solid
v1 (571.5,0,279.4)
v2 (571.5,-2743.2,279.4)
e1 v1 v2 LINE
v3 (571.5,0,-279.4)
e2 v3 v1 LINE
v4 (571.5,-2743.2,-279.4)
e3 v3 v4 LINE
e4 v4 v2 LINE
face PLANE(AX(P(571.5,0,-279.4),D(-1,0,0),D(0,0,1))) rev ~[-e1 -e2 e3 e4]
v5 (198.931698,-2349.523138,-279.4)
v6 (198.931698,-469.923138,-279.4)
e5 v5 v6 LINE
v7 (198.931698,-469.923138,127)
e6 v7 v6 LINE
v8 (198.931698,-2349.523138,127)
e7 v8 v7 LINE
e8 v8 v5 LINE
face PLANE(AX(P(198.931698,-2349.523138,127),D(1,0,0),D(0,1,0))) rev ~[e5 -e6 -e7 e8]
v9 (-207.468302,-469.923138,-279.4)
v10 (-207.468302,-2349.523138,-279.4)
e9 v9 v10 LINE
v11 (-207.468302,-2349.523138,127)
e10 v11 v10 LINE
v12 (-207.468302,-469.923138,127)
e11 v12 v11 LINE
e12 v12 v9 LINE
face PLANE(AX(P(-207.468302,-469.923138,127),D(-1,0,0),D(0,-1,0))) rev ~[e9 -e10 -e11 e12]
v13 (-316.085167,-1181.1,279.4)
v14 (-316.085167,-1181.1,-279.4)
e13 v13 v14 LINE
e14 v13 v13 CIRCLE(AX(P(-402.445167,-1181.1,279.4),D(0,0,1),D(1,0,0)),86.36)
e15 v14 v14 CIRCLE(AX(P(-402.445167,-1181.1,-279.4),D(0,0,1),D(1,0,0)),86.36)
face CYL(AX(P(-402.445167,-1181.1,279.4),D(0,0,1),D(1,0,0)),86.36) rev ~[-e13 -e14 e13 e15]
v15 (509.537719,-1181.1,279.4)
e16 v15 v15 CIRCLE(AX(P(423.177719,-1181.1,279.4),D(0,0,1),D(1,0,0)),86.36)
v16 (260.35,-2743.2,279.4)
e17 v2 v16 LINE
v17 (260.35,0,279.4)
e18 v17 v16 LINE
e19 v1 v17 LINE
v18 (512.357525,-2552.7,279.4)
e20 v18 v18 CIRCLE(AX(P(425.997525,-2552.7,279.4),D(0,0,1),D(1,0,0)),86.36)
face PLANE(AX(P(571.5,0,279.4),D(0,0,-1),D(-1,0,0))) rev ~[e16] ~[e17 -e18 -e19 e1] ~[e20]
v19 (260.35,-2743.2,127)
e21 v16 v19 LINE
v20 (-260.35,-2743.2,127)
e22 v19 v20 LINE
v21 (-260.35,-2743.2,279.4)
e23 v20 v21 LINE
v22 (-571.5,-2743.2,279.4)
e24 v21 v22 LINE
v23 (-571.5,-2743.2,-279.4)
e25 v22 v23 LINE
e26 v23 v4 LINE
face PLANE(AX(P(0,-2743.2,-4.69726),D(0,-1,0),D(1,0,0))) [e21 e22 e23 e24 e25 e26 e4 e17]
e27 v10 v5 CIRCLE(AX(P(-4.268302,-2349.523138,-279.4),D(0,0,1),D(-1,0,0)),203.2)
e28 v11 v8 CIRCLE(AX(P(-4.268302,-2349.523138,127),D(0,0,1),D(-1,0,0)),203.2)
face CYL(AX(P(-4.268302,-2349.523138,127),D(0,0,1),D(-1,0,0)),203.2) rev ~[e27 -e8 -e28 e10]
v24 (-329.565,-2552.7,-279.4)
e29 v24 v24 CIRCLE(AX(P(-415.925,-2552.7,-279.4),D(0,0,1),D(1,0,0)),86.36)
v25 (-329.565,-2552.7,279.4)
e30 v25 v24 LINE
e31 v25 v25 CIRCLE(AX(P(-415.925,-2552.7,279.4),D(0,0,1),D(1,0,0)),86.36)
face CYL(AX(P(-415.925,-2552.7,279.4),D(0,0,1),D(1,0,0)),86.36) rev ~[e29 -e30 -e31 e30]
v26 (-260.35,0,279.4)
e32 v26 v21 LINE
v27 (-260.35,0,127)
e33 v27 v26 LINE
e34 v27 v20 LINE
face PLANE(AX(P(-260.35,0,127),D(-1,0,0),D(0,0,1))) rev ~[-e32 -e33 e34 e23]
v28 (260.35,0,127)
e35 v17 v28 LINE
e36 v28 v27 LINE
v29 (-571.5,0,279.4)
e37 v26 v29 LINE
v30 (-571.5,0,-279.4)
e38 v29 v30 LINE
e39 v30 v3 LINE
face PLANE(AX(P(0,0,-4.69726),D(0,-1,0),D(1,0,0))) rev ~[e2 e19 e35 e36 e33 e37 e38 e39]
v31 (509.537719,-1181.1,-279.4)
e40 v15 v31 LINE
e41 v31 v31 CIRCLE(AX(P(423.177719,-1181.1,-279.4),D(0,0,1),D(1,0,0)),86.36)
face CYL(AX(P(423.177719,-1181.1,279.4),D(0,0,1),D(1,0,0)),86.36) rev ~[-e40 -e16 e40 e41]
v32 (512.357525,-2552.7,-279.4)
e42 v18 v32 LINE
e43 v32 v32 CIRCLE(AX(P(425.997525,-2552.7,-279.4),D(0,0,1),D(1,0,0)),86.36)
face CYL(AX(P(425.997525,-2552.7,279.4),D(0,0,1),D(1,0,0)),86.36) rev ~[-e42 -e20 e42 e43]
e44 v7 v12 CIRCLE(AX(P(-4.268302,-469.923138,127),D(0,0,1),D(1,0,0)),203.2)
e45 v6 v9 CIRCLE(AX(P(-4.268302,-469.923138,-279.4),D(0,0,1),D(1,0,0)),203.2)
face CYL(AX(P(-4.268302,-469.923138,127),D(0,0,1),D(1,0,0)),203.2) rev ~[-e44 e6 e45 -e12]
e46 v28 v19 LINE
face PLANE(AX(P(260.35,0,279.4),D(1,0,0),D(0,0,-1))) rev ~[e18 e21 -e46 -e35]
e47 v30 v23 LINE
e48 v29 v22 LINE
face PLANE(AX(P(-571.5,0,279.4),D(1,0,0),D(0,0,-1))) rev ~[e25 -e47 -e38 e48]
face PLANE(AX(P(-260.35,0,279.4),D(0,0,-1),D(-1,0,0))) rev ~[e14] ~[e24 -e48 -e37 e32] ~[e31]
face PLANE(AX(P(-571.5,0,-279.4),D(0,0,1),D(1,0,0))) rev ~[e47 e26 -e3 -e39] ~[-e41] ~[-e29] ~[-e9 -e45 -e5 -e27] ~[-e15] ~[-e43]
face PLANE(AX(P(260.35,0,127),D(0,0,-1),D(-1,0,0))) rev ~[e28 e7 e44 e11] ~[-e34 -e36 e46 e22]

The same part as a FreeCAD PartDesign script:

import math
import FreeCAD as App
import Part
import Sketcher
from FreeCAD import Vector
Q = App.Units.Quantity


def add_polygon(sketch, points):
    """Adds a closed chain of lines whose ends are joined by coincident constraints."""
    first, n = sketch.GeometryCount, len(points)
    for a, b in zip(points, points[1:] + points[:1]):
        sketch.addGeometry(Part.LineSegment(App.Vector(*a, 0), App.Vector(*b, 0)), False)
    for i in range(n):
        sketch.addConstraint(Sketcher.Constraint("Coincident", first + i, 2, first + (i + 1) % n, 1))

doc = App.newDocument("Part")
body = doc.addObject("PartDesign::Body", "Body")

sketch1 = doc.addObject("Sketcher::SketchObject", "Sketch")
body.addObject(sketch1)
sketch1.AttachmentSupport = (doc.XZ_Plane, [""])
sketch1.MapMode = "FlatFace"
add_polygon(sketch1, [(571.5, -279.4), (571.5, 279.4), (260.35, 279.4), (260.35, 127), (-260.35, 127), (-260.35, 279.4), (-571.5, 279.4), (-571.5, -279.4)])
sketch1.addConstraint([
    Sketcher.Constraint("Vertical", 0),
    Sketcher.Constraint("Horizontal", 1),
    Sketcher.Constraint("Vertical", 2),
    Sketcher.Constraint("Horizontal", 3),
    Sketcher.Constraint("Vertical", 4),
    Sketcher.Constraint("Horizontal", 5),
    Sketcher.Constraint("Vertical", 6),
    Sketcher.Constraint("Horizontal", 7),
    Sketcher.Constraint("Symmetric", 0, 2, 6, 2, -1, 1),
    Sketcher.Constraint("Symmetric", 1, 2, 4, 2, -2),
    Sketcher.Constraint("DistanceX", 7, 1, 7, 2, Q("45 in")),
    Sketcher.Constraint("DistanceY", 0, 1, 0, 2, Q("22 in")),
    Sketcher.Constraint("DistanceY", 2, 2, 2, 1, Q("6 in")),
    Sketcher.Constraint("DistanceX", 3, 2, 3, 1, Q("20.5 in")),
])
pad1 = doc.addObject("PartDesign::Pad", "Pad")
body.addObject(pad1)
pad1.Profile = sketch1
pad1.Length = Q("108 in")

sketch2 = doc.addObject("Sketcher::SketchObject", "Sketch001")
body.addObject(sketch2)
sketch2.AttachmentSupport = (doc.XY_Plane, [""])
sketch2.MapMode = "FlatFace"
sketch2.AttachmentOffset = App.Placement(Vector(0, 0, 5 * 25.4), App.Rotation())
sketch2.addGeometry([
    Part.ArcOfCircle(Part.Circle(Vector(-4.268302, -469.923138, 0), Vector(0, 0, 1), 203.2), math.radians(0), math.radians(180)),
    Part.LineSegment(Vector(-207.468302, -469.923138, 0), Vector(-207.468302, -2349.523138, 0)),
    Part.ArcOfCircle(Part.Circle(Vector(-4.268302, -2349.523138, 0), Vector(0, 0, 1), 203.2), math.radians(180), math.radians(360)),
    Part.LineSegment(Vector(198.931698, -2349.523138, 0), Vector(198.931698, -469.923138, 0)),
], False)
sketch2.addConstraint([
    Sketcher.Constraint("Tangent", 0, 2, 1, 1),
    Sketcher.Constraint("Tangent", 1, 2, 2, 1),
    Sketcher.Constraint("Tangent", 2, 2, 3, 1),
    Sketcher.Constraint("Tangent", 3, 2, 0, 1),
    Sketcher.Constraint("Vertical", 1),
    Sketcher.Constraint("Vertical", 3),
    Sketcher.Constraint("Radius", 0, Q("8 in")),
    Sketcher.Constraint("DistanceY", 1, 2, 1, 1, Q("74 in")),
    Sketcher.Constraint("DistanceX", 0, 2, -1, 1, 207.468302),
    Sketcher.Constraint("DistanceY", 0, 3, -1, 1, 469.923138),
])
pocket1 = doc.addObject("PartDesign::Pocket", "Pocket")
body.addObject(pocket1)
pocket1.Profile = sketch2
pocket1.Length = Q("16 in")

sketch3 = doc.addObject("Sketcher::SketchObject", "Sketch002")
body.addObject(sketch3)
sketch3.AttachmentSupport = (doc.XY_Plane, [""])
sketch3.MapMode = "FlatFace"
sketch3.AttachmentOffset = App.Placement(Vector(0, 0, 11 * 25.4), App.Rotation())
sketch3.addGeometry([
    Part.Circle(Vector(-402.445167, -1181.1, 0), Vector(0, 0, 1), 86.36),
    Part.Circle(Vector(-415.925, -2552.7, 0), Vector(0, 0, 1), 86.36),
    Part.Circle(Vector(425.997525, -2552.7, 0), Vector(0, 0, 1), 86.36),
    Part.Circle(Vector(423.177719, -1181.1, 0), Vector(0, 0, 1), 86.36),
], False)
sketch3.addConstraint([
    Sketcher.Constraint("Equal", 0, 1),
    Sketcher.Constraint("Equal", 1, 2),
    Sketcher.Constraint("Equal", 2, 3),
    Sketcher.Constraint("Horizontal", 1, 3, 2, 3),
    Sketcher.Constraint("Horizontal", 0, 3, 3, 3),
    Sketcher.Constraint("Diameter", 0, Q("6.8 in")),
    Sketcher.Constraint("DistanceY", 1, 3, 0, 3, Q("54 in")),
    Sketcher.Constraint("DistanceY", 0, 3, -1, 1, Q("46.5 in")),
    Sketcher.Constraint("DistanceX", 1, 3, -1, 1, Q("16.375 in")),
    Sketcher.Constraint("DistanceX", -1, 1, 3, 3, 423.177719),
    Sketcher.Constraint("DistanceX", 0, 3, -1, 1, 402.445167),
    Sketcher.Constraint("DistanceX", -1, 1, 2, 3, 425.997525),
])
pocket2 = doc.addObject("PartDesign::Pocket", "Pocket001")
body.addObject(pocket2)
pocket2.Profile = sketch3
pocket2.Length = Q("22 in")

doc.recompute()
